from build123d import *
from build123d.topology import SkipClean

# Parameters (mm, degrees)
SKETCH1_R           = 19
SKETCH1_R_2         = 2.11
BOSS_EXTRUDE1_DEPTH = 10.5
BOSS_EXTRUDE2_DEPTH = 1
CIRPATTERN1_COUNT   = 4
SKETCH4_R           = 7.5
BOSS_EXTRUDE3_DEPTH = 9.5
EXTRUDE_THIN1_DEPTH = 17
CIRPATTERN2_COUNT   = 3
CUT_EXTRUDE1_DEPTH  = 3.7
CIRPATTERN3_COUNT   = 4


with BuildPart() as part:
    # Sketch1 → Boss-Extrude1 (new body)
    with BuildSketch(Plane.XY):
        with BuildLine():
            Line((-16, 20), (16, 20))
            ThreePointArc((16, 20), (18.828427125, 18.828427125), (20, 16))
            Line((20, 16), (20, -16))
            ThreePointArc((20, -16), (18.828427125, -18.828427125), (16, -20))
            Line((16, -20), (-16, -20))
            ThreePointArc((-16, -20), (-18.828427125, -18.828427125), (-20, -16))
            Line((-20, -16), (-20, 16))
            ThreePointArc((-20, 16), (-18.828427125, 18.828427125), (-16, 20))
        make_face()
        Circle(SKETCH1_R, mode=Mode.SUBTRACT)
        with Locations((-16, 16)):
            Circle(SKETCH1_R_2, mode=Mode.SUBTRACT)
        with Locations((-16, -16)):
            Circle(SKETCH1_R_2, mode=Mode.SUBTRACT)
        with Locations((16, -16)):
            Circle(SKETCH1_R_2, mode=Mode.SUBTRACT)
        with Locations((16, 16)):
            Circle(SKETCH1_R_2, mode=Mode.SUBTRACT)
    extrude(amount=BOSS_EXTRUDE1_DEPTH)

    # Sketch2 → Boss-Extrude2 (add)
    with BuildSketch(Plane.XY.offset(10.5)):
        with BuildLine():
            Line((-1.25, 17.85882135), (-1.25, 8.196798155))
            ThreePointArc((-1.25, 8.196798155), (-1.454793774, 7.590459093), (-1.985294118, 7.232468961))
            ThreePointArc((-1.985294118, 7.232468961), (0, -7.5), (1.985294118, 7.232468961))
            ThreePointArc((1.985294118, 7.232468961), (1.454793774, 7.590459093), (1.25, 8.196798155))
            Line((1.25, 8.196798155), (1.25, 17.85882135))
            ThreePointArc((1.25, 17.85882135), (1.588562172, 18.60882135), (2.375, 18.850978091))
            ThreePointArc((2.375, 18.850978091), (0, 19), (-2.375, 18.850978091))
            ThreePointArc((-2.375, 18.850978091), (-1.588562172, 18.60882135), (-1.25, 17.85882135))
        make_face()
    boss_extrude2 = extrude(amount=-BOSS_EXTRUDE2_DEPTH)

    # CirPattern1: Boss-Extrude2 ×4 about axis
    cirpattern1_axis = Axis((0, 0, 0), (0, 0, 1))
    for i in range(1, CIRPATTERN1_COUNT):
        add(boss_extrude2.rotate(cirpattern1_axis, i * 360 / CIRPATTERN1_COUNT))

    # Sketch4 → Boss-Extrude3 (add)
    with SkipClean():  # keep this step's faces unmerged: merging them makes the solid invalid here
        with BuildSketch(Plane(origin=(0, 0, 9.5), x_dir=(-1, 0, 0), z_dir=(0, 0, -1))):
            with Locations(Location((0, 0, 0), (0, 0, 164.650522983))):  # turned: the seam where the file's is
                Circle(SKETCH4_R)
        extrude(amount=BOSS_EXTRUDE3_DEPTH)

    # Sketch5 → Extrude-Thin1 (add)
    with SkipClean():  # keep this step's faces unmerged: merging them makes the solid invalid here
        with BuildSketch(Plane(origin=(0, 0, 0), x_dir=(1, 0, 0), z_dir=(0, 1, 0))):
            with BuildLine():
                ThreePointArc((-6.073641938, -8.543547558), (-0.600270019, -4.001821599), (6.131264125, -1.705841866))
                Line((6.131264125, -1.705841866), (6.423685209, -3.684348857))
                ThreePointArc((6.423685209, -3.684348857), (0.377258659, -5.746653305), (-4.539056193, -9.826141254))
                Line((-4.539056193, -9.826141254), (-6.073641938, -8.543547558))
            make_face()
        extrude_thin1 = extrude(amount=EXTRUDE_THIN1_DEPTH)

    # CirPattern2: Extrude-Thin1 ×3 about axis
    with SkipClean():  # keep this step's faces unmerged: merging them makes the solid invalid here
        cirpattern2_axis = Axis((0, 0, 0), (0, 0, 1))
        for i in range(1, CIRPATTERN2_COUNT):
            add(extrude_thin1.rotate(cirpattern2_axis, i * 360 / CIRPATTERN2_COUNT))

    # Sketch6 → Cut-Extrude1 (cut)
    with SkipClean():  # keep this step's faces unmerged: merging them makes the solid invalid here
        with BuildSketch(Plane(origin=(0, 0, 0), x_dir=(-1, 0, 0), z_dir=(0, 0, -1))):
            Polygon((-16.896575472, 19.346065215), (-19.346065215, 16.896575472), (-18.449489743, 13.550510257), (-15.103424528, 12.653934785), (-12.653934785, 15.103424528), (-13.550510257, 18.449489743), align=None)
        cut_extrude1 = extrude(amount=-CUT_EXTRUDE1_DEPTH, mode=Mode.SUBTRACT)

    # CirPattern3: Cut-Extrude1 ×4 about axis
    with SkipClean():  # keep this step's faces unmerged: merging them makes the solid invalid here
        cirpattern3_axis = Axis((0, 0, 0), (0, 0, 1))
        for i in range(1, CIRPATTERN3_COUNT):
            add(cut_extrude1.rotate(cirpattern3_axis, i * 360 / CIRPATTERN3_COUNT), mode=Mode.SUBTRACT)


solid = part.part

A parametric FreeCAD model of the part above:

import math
import FreeCAD as App
import Part
import Sketcher

V = App.Vector
Q = App.Units.Quantity


def add_polygon(sketch, points):
    """Adds a closed chain of lines whose ends are joined by coincident constraints."""
    first, n = sketch.GeometryCount, len(points)
    for a, b in zip(points, points[1:] + points[:1]):
        sketch.addGeometry(Part.LineSegment(App.Vector(*a, 0), App.Vector(*b, 0)), False)
    for i in range(n):
        sketch.addConstraint(Sketcher.Constraint("Coincident", first + i, 2, first + (i + 1) % n, 1))

doc = App.newDocument("Part")
params = doc.addObject("Spreadsheet::Sheet", "Params")
for row, (alias, value) in enumerate([
    ("sketch1_diameter", "38 mm"),
    ("sketch1_radius", "4 mm"),
    ("sketch1_diameter2", "4.22 mm"),
    ("sketch1_width", "32 mm"),
    ("pad1_length", "10.5 mm"),
    ("sketch2_radius", "1 mm"),
    ("sketch2_radius2", "19 mm"),
    ("sketch2_radius3", "7.5 mm"),
    ("pad2_length", "1 mm"),
    ("sketch3_diameter", "15 mm"),
    ("pad3_length", "9.5 mm"),
    ("sketch4_length", "2 mm"),
    ("pad4_length", "17 mm"),
    ("pocket1_length", "3.7 mm"),
], start=1):
    params.set(f"A{row}", alias)
    params.set(f"B{row}", "=" + value)
    params.setAlias(f"B{row}", alias)

body = doc.addObject("PartDesign::Body", "Body")

# Sketch on XY plane
sketch1 = body.newObject("Sketcher::SketchObject", "Sketch")
sketch1.AttachmentSupport = (doc.getObject("XY_Plane"), [""])
sketch1.MapMode = "FlatFace"
sketch1.addGeometry([
    Part.LineSegment(V(16, 20, 0), V(-16, 20, 0)),  # 0
    Part.ArcOfCircle(Part.Circle(V(-16, 16, 0), V(0, 0, 1), 4), math.radians(90), math.radians(180)),  # 1
    Part.LineSegment(V(-20, 16, 0), V(-20, -16, 0)),  # 2
    Part.ArcOfCircle(Part.Circle(V(-16, -16, 0), V(0, 0, 1), 4), math.radians(180), math.radians(270)),  # 3
    Part.LineSegment(V(-16, -20, 0), V(16, -20, 0)),  # 4
    Part.ArcOfCircle(Part.Circle(V(16, -16, 0), V(0, 0, 1), 4), math.radians(-90), math.radians(0)),  # 5
    Part.LineSegment(V(20, -16, 0), V(20, 16, 0)),  # 6
    Part.ArcOfCircle(Part.Circle(V(16, 16, 0), V(0, 0, 1), 4), math.radians(0), math.radians(90)),  # 7
    Part.Circle(V(16, -16, 0), V(0, 0, 1), 2.1),  # 8
    Part.Circle(V(-16, -16, 0), V(0, 0, 1), 2.1),  # 9
    Part.Circle(V(16, 16, 0), V(0, 0, 1), 2.1),  # 10
    Part.Circle(V(0, 0, 0), V(0, 0, 1), 19),  # 11
    Part.Circle(V(-16, 16, 0), V(0, 0, 1), 2.1),  # 12
], False)
sketch1.addConstraint([
    Sketcher.Constraint("Tangent", 0, 2, 1, 1),
    Sketcher.Constraint("Tangent", 1, 2, 2, 1),
    Sketcher.Constraint("Tangent", 2, 2, 3, 1),
    Sketcher.Constraint("Tangent", 3, 2, 4, 1),
    Sketcher.Constraint("Tangent", 4, 2, 5, 1),
    Sketcher.Constraint("Tangent", 5, 2, 6, 1),
    Sketcher.Constraint("Tangent", 6, 2, 7, 1),
    Sketcher.Constraint("Tangent", 7, 2, 0, 1),
    Sketcher.Constraint("Horizontal", 0),
    Sketcher.Constraint("Vertical", 2),
    Sketcher.Constraint("Horizontal", 4),
    Sketcher.Constraint("Vertical", 6),
    Sketcher.Constraint("Coincident", 11, 3, -1, 1),
    Sketcher.Constraint("Coincident", 8, 3, 5, 3),
    Sketcher.Constraint("Coincident", 9, 3, 3, 3),
    Sketcher.Constraint("Coincident", 10, 3, 7, 3),
    Sketcher.Constraint("Coincident", 12, 3, 1, 3),
    Sketcher.Constraint("Equal", 1, 3),
    Sketcher.Constraint("Equal", 3, 5),
    Sketcher.Constraint("Equal", 5, 7),
    Sketcher.Constraint("Equal", 8, 9),
    Sketcher.Constraint("Equal", 9, 10),
    Sketcher.Constraint("Equal", 10, 12),
    Sketcher.Constraint("Symmetric", 1, 3, 5, 3, -1, 1),
    Sketcher.Constraint("Equal", 4, 2),
    Sketcher.Constraint("Diameter", 11, 38.0),
    Sketcher.Constraint("Radius", 1, 4.0),
    Sketcher.Constraint("Diameter", 8, 4.22),
    Sketcher.Constraint("DistanceX", 0, 2, 0, 1, 32.0),
])
sketch1.setExpression("Constraints[25]", "Params.sketch1_diameter")
sketch1.setExpression("Constraints[26]", "Params.sketch1_radius")
sketch1.setExpression("Constraints[27]", "Params.sketch1_diameter2")
sketch1.setExpression("Constraints[28]", "Params.sketch1_width")
pad1 = body.newObject("PartDesign::Pad", "Pad")
pad1.Profile = sketch1
pad1.setExpression("Length", "Params.pad1_length")

# Sketch on XY plane
sketch2 = body.newObject("Sketcher::SketchObject", "Sketch001")
sketch2.AttachmentSupport = (doc.getObject("XY_Plane"), [""])
sketch2.MapMode = "FlatFace"
sketch2.AttachmentOffset = App.Placement(V(0, 0, 10.5), App.Rotation())
sketch2.addGeometry([
    Part.LineSegment(V(-1.2, 17.9, 0), V(-1.2, 8.2, 0)),  # 0
    Part.ArcOfCircle(Part.Circle(V(-2.2, 8.2, 0), V(0, 0, 1), 1), math.radians(-75), math.radians(0)),  # 1
    Part.ArcOfCircle(Part.Circle(V(0, 0, 0), V(0, 0, 1), 7.5), math.radians(105), math.radians(435)),  # 2
    Part.ArcOfCircle(Part.Circle(V(2.2, 8.2, 0), V(0, 0, 1), 1), math.radians(180), math.radians(255)),  # 3
    Part.LineSegment(V(1.2, 8.2, 0), V(1.2, 17.9, 0)),  # 4
    Part.ArcOfCircle(Part.Circle(V(2.2, 17.9, 0), V(0, 0, 1), 1), math.radians(83), math.radians(180)),  # 5
    Part.ArcOfCircle(Part.Circle(V(0, 0, 0), V(0, 0, 1), 19), math.radians(82.82), math.radians(97.18)),  # 6
    Part.ArcOfCircle(Part.Circle(V(-2.2, 17.9, 0), V(0, 0, 1), 1), math.radians(0), math.radians(97)),  # 7
], False)
sketch2.addConstraint([
    Sketcher.Constraint("Tangent", 0, 2, 1, 2),
    Sketcher.Constraint("Tangent", 1, 1, 2, 1),
    Sketcher.Constraint("Tangent", 2, 2, 3, 2),
    Sketcher.Constraint("Tangent", 3, 1, 4, 1),
    Sketcher.Constraint("Tangent", 4, 2, 5, 2),
    Sketcher.Constraint("Tangent", 5, 1, 6, 1),
    Sketcher.Constraint("Tangent", 6, 2, 7, 2),
    Sketcher.Constraint("Tangent", 7, 1, 0, 1),
    Sketcher.Constraint("Vertical", 0),
    Sketcher.Constraint("Vertical", 4),
    Sketcher.Constraint("Coincident", 2, 3, -1, 1),
    Sketcher.Constraint("Coincident", 6, 3, -1, 1),
    Sketcher.Constraint("Equal", 1, 3),
    Sketcher.Constraint("Equal", 3, 5),
    Sketcher.Constraint("Equal", 5, 7),
    Sketcher.Constraint("Horizontal", 1, 3, 3, 3),
    Sketcher.Constraint("Radius", 1, 1.0),
    Sketcher.Constraint("Radius", 6, 19.0),
    Sketcher.Constraint("Radius", 2, 7.5),
    Sketcher.Constraint("DistanceX", 1, 3, 3, 3, 4.5),
])
sketch2.setExpression("Constraints[16]", "Params.sketch2_radius")
sketch2.setExpression("Constraints[17]", "Params.sketch2_radius2")
sketch2.setExpression("Constraints[18]", "Params.sketch2_radius3")
pad2 = body.newObject("PartDesign::Pad", "Pad001")
pad2.Profile = sketch2
pad2.setExpression("Length", "Params.pad2_length")
pad2.Reversed = True
doc.recompute()

polarpattern = body.newObject("PartDesign::PolarPattern", "PolarPattern")
polarpattern.Originals = [pad2]
polarpattern.Axis = (doc.getObject("Z_Axis"), [""])
polarpattern.Angle = 360
polarpattern.Occurrences = 4
body.Tip = polarpattern

# Sketch on XY plane
sketch3 = body.newObject("Sketcher::SketchObject", "Sketch002")
sketch3.AttachmentSupport = (doc.getObject("XY_Plane"), [""])
sketch3.MapMode = "FlatFace"
sketch3.AttachmentOffset = App.Placement(V(0, 0, 9.5), App.Rotation())
sketch3.addGeometry(Part.Circle(V(0, 0, 0), V(0, 0, 1), 8), False)
sketch3.addConstraint([
    Sketcher.Constraint("Coincident", 0, 3, -1, 1),
    Sketcher.Constraint("Diameter", 0, 15.0),
])
sketch3.setExpression("Constraints[1]", "Params.sketch3_diameter")
pad3 = body.newObject("PartDesign::Pad", "Pad002")
pad3.Profile = sketch3
pad3.setExpression("Length", "Params.pad3_length")
pad3.Reversed = True

# Sketch on XZ plane
sketch4 = body.newObject("Sketcher::SketchObject", "Sketch003")
sketch4.AttachmentSupport = (doc.getObject("XZ_Plane"), [""])
sketch4.MapMode = "FlatFace"
sketch4.addGeometry([
    Part.ArcOfCircle(Part.Circle(V(9, 21.1, 0), V(0, 0, 1), 19.7), math.radians(-140), math.radians(-98)),
    Part.LineSegment(V(-6.1, 8.5, 0), V(-4.5, 9.8, 0)),
    Part.ArcOfCircle(Part.Circle(V(9, 21.1, 0), V(0, 0, 1), 17.7), math.radians(-140), math.radians(-98)),
    Part.LineSegment(V(6.4, 3.7, 0), V(6.1, 1.7, 0)),
], False)
sketch4.addConstraint([
    Sketcher.Constraint("Coincident", 0, 1, 1, 1),
    Sketcher.Constraint("Coincident", 1, 2, 2, 1),
    Sketcher.Constraint("Coincident", 2, 2, 3, 1),
    Sketcher.Constraint("Coincident", 3, 2, 0, 2),
    Sketcher.Constraint("Coincident", 2, 3, 0, 3),
    Sketcher.Constraint("Distance", 1, 2.0),
    Sketcher.Constraint("Radius", 0, 19.651028),
    Sketcher.Constraint("DistanceY", 2, 2, 0, 1, 4.859199),
    Sketcher.Constraint("DistanceY", 3, 2, 1, 2, 8.120299),
    Sketcher.Constraint("DistanceX", -1, 1, 0, 3, 9.004452),
    Sketcher.Constraint("DistanceY", -1, 1, 0, 3, 21.14569),
    Sketcher.Constraint("DistanceX", 0, 1, -1, 1, 6.073642),
    Sketcher.Constraint("DistanceY", -1, 1, 1, 2, 9.826141),
])
sketch4.setExpression("Constraints[5]", "Params.sketch4_length")
pad4 = body.newObject("PartDesign::Pad", "Pad003")
pad4.Profile = sketch4
pad4.setExpression("Length", "Params.pad4_length")
pad4.Reversed = True
doc.recompute()

polarpattern2 = body.newObject("PartDesign::PolarPattern", "PolarPattern001")
polarpattern2.Originals = [pad4]
polarpattern2.Axis = (doc.getObject("Z_Axis"), [""])
polarpattern2.Angle = 360
polarpattern2.Occurrences = 3
body.Tip = polarpattern2

# Sketch on XY plane
sketch5 = body.newObject("Sketcher::SketchObject", "Sketch004")
sketch5.AttachmentSupport = (doc.getObject("XY_Plane"), [""])
sketch5.MapMode = "FlatFace"
add_polygon(sketch5, [(16.9, 19.3), (19.3, 16.9), (18.4, 13.6), (15.1, 12.7), (12.7, 15.1), (13.6, 18.4)])  # lines 0-5
sketch5.addConstraint([
    Sketcher.Constraint("Parallel", 0, 3),
    Sketcher.Constraint("Parallel", 1, 4),
    Sketcher.Constraint("Parallel", 2, 5),
    Sketcher.Constraint("Equal", 0, 1),
    Sketcher.Constraint("Equal", 1, 2),
    Sketcher.Constraint("Equal", 2, 3),
    Sketcher.Constraint("Angle", 0, Q("-45 deg")),
    Sketcher.Constraint("Angle", 1, Q("-105 deg")),
    Sketcher.Constraint("Angle", 2, Q("-165 deg")),
    Sketcher.Constraint("Distance", 0, 3.464102),
    Sketcher.Constraint("DistanceX", -1, 1, 1, 2, 18.44949),
    Sketcher.Constraint("DistanceY", -1, 1, 1, 2, 13.55051),
])
pocket1 = body.newObject("PartDesign::Pocket", "Pocket")
pocket1.Profile = sketch5
pocket1.setExpression("Length", "Params.pocket1_length")
pocket1.Reversed = True
doc.recompute()

polarpattern3 = body.newObject("PartDesign::PolarPattern", "PolarPattern002")
polarpattern3.Originals = [pocket1]
polarpattern3.Axis = (doc.getObject("Z_Axis"), [""])
polarpattern3.Angle = 360
polarpattern3.Occurrences = 4
body.Tip = polarpattern3

doc.recompute()
